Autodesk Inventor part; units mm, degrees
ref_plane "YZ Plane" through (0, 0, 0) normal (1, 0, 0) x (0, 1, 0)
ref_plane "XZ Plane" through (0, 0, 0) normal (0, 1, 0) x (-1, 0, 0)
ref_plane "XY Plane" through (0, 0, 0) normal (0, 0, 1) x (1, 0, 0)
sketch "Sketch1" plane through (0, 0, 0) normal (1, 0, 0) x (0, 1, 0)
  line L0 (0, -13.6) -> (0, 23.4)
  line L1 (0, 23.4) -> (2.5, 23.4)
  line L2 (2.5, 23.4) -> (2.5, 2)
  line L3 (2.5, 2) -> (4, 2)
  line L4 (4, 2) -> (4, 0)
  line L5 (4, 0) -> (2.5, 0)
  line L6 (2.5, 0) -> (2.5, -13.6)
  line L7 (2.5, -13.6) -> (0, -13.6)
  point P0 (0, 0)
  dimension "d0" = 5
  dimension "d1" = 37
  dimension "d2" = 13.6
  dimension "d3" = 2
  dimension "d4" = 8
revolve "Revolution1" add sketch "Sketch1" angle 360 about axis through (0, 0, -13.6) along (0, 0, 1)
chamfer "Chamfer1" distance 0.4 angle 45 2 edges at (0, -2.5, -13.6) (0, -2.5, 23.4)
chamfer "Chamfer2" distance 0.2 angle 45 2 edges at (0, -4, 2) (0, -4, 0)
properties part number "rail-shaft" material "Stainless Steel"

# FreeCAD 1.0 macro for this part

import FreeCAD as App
import Part
import Sketcher
Q = App.Units.Quantity


def edges_at(feature, points):
    """Names of the edges that pass closest to the given points."""
    edges = feature.Shape.Edges
    near = lambda p: min(range(len(edges)), key=lambda i: edges[i].distToShape(Part.Vertex(*p))[0])
    return sorted({f"Edge{near(p) + 1}" for p in points})


def add_polygon(sketch, points):
    """Adds a closed chain of lines whose ends are joined by coincident constraints."""
    first, n = sketch.GeometryCount, len(points)
    for a, b in zip(points, points[1:] + points[:1]):
        sketch.addGeometry(Part.LineSegment(App.Vector(*a, 0), App.Vector(*b, 0)), False)
    for i in range(n):
        sketch.addConstraint(Sketcher.Constraint("Coincident", first + i, 2, first + (i + 1) % n, 1))

doc = App.newDocument("Part")
body = doc.addObject("PartDesign::Body", "Body")

# Sketch on YZ plane
sketch1 = body.newObject("Sketcher::SketchObject", "Sketch")
sketch1.AttachmentSupport = (doc.getObject("YZ_Plane"), [""])
sketch1.MapMode = "FlatFace"
add_polygon(sketch1, [(0, 23.4), (0, -13.6), (2.5, -13.6), (2.5, 0), (4, 0), (4, 2), (2.5, 2), (2.5, 23.4)])  # lines 0-7
sketch1.addConstraint([
    Sketcher.Constraint("Vertical", 0),
    Sketcher.Constraint("Horizontal", 1),
    Sketcher.Constraint("Vertical", 2),
    Sketcher.Constraint("Horizontal", 3),
    Sketcher.Constraint("Vertical", 4),
    Sketcher.Constraint("Horizontal", 5),
    Sketcher.Constraint("Vertical", 6),
    Sketcher.Constraint("Horizontal", 7),
    Sketcher.Constraint("PointOnObject", 0, 2, -2),
    Sketcher.Constraint("PointOnObject", 2, 2, -1),
    Sketcher.Constraint("Vertical", 2, 2, 5, 2),
    Sketcher.Constraint("DistanceY", 0, 2, 0, 1, Q("37 mm")),
    Sketcher.Constraint("DistanceY", 4, 1, 4, 2, Q("2 mm")),
    Sketcher.Constraint("DistanceY", 2, 1, 2, 2, Q("13.6 mm")),
    Sketcher.Constraint("DistanceX", 1, 1, 1, 2, Q("2.5 mm")),
    Sketcher.Constraint("DistanceX", 3, 1, 3, 2, Q("1.5 mm")),
])
revolution = body.newObject("PartDesign::Revolution", "Revolution")
revolution.Profile = sketch1
revolution.ReferenceAxis = (sketch1, ["V_Axis"])
revolution.Angle = 360
doc.recompute()

chamfer = body.newObject("PartDesign::Chamfer", "Chamfer")
chamfer.Base = (revolution, edges_at(revolution, [(0, -2.5, -13.6), (0, -2.5, 23.4)]))
chamfer.Size = 0.4
doc.recompute()

chamfer2 = body.newObject("PartDesign::Chamfer", "Chamfer001")
chamfer2.Base = (chamfer, edges_at(chamfer, [(0, -4, 2), (0, -4, 0)]))
chamfer2.Size = 0.2

doc.recompute()
